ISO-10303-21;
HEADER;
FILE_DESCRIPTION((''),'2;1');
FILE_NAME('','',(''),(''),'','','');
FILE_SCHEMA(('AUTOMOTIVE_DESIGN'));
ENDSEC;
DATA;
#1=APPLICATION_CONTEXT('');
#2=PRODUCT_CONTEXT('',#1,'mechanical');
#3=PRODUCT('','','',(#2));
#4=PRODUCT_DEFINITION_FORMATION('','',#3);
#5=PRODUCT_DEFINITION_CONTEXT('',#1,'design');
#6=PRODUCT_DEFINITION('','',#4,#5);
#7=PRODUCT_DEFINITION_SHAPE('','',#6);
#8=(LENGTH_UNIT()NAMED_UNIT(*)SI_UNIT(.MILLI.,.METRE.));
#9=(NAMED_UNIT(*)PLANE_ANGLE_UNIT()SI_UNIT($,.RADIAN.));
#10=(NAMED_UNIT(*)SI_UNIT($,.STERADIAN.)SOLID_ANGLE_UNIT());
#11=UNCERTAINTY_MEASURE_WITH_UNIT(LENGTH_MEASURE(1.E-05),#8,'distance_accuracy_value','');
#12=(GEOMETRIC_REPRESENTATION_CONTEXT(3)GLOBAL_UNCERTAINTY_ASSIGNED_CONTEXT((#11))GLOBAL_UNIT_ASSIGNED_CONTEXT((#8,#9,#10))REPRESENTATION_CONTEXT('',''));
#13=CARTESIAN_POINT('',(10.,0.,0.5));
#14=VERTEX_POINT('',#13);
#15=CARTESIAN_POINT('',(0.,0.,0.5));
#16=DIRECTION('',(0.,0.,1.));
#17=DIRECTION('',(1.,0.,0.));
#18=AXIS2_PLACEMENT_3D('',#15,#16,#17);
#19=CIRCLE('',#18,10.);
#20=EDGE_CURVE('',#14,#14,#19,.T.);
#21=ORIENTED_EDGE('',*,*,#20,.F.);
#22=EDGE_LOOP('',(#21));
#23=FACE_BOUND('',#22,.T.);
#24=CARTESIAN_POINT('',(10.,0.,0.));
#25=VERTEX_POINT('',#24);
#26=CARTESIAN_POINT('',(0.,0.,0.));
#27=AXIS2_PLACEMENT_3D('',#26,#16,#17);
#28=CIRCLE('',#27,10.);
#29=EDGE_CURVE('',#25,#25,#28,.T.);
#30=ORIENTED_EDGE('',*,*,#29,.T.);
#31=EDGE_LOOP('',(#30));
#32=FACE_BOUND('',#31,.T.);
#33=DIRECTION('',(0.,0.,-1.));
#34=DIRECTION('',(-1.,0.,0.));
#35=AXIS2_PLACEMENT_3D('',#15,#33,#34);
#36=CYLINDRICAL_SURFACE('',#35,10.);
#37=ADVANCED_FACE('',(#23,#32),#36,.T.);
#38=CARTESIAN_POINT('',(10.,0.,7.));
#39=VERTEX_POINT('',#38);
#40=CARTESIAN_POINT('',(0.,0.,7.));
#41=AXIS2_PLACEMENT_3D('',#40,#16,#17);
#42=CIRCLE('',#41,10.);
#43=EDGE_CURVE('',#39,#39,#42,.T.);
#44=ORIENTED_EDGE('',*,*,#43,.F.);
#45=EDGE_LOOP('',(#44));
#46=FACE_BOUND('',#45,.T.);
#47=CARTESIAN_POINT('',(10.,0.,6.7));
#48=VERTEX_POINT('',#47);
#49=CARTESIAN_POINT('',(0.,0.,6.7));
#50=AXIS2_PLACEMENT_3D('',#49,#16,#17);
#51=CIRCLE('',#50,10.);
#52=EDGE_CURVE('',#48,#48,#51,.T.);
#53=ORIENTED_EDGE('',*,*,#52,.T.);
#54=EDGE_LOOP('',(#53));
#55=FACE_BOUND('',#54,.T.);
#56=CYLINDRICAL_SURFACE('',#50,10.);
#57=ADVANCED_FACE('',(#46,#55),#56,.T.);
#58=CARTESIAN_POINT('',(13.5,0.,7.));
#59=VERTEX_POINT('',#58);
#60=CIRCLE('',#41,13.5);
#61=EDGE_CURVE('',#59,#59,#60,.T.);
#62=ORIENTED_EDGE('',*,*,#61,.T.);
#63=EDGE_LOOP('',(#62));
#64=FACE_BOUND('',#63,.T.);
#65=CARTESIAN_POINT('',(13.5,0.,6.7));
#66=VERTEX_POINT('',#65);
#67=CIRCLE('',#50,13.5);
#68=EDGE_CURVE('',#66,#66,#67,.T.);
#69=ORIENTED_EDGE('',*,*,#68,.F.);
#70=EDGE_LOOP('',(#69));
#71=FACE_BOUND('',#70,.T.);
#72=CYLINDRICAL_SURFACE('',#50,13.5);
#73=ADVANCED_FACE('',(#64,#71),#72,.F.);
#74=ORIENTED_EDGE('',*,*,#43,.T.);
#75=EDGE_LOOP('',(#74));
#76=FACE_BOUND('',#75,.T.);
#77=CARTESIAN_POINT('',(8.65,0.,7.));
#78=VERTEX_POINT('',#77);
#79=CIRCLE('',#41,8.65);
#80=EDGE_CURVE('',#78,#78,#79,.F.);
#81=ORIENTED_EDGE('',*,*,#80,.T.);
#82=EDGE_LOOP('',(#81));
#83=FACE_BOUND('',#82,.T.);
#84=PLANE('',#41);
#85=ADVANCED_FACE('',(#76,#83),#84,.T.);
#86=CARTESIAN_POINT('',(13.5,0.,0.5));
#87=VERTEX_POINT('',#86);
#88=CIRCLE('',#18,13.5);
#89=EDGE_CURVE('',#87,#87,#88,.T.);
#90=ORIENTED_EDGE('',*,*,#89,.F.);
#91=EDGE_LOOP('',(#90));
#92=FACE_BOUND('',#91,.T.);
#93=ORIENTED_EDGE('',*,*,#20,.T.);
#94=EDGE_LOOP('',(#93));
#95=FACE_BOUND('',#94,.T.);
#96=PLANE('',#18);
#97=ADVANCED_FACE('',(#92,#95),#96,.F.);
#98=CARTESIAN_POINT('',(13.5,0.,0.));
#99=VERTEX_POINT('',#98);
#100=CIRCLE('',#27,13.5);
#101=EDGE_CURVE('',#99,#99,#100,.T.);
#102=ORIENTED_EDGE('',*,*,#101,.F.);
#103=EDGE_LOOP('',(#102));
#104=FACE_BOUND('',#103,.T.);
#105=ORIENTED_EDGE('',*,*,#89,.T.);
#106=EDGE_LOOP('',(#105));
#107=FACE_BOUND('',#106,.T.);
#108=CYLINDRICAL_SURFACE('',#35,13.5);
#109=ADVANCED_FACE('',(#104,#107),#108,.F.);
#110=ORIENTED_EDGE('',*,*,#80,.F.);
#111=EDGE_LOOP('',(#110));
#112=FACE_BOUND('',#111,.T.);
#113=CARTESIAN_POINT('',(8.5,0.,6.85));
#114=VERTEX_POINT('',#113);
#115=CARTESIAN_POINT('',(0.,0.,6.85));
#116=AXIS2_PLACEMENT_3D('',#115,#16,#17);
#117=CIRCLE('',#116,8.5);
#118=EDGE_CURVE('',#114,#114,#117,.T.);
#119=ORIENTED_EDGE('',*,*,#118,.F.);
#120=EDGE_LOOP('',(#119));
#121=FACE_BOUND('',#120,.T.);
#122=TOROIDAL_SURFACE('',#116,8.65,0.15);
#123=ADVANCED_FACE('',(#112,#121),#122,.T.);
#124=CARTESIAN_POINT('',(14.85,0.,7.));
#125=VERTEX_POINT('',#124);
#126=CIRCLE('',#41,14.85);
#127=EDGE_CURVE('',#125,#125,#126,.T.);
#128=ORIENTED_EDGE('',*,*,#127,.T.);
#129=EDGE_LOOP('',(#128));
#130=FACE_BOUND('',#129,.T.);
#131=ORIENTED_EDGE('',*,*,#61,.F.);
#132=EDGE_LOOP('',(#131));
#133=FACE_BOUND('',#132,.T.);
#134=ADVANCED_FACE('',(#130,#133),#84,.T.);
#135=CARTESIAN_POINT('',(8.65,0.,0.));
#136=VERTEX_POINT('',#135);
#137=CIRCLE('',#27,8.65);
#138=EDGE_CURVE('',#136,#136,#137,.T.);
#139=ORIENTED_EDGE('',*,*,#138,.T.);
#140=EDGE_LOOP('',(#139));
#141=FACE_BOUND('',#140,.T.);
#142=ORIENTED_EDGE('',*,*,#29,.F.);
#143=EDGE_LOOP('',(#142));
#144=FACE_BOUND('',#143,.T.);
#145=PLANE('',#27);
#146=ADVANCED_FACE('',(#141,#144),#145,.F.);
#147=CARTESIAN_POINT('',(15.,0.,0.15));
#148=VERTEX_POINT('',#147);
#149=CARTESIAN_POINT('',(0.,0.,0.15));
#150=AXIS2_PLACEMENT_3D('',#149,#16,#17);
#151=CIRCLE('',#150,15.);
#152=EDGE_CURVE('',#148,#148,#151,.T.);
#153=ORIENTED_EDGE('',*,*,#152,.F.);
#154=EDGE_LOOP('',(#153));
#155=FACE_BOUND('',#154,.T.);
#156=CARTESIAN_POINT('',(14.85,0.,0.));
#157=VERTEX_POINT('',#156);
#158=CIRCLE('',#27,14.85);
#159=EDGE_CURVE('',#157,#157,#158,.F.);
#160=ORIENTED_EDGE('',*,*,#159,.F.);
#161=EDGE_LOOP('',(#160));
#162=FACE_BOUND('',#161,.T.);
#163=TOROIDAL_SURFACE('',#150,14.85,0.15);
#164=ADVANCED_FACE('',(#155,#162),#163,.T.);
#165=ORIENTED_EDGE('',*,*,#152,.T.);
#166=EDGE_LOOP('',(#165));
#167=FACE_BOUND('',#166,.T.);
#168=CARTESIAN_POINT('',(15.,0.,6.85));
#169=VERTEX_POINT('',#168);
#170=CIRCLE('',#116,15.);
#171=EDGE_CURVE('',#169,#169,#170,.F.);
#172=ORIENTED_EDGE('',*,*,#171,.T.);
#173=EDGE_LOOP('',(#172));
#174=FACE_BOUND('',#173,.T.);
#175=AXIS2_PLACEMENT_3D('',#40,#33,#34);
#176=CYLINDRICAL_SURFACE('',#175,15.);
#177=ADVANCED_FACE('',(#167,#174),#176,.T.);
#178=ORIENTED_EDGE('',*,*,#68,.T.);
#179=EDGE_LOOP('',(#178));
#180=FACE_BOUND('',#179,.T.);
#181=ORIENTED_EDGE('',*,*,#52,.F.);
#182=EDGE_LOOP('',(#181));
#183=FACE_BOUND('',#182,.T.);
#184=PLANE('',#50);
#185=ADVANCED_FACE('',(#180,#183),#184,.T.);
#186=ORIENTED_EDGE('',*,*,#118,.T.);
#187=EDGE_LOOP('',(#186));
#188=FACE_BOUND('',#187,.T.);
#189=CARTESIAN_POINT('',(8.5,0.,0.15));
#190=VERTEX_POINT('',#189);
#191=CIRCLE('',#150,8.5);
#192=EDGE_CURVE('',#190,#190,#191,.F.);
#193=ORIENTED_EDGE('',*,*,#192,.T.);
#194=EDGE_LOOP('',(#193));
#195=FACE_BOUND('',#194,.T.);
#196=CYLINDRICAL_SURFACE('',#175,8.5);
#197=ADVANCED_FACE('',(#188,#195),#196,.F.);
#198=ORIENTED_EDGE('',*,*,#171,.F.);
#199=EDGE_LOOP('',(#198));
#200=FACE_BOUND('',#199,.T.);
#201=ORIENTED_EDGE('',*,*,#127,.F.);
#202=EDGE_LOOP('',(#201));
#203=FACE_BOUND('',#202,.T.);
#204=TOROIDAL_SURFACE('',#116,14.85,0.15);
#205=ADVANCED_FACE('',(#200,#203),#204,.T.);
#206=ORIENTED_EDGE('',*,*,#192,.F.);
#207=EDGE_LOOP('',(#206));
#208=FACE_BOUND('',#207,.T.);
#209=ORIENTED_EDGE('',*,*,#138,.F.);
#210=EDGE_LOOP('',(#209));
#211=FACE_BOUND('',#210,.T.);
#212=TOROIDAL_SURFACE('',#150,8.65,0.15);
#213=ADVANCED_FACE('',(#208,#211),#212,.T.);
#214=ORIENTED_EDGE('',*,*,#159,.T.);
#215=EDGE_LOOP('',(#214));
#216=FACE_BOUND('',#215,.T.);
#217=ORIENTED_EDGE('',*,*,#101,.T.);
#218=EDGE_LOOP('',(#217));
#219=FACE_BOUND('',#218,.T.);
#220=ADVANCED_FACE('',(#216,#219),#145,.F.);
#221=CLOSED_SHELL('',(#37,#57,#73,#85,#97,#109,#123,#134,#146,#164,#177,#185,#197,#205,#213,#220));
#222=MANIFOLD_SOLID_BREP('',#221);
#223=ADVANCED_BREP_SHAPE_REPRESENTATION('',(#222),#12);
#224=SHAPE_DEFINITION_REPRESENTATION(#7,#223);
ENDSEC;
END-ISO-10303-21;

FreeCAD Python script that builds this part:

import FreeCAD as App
import Part
import Sketcher

V = App.Vector
Q = App.Units.Quantity


def edges_at(feature, points):
    """Names of the edges that pass closest to the given points."""
    edges = feature.Shape.Edges
    near = lambda p: min(range(len(edges)), key=lambda i: edges[i].distToShape(Part.Vertex(*p))[0])
    return sorted({f"Edge{near(p) + 1}" for p in points})

doc = App.newDocument("Part")
body = doc.addObject("PartDesign::Body", "Body")

sketch1 = doc.addObject("Sketcher::SketchObject", "Sketch")
body.addObject(sketch1)
sketch1.AttachmentSupport = (doc.XY_Plane, [""])
sketch1.MapMode = "FlatFace"
sketch1.addGeometry([
    Part.Circle(V(0, 0, 0), V(0, 0, 1), 15),
    Part.Circle(V(0, 0, 0), V(0, 0, 1), 8),
], False)
sketch1.addConstraint([
    Sketcher.Constraint("Coincident", 0, 3, -1, 1),
    Sketcher.Constraint("Coincident", 1, 3, -1, 1),
    Sketcher.Constraint("Diameter", 0, Q("30 mm")),
    Sketcher.Constraint("Diameter", 1, Q("17 mm")),
])
pad1 = doc.addObject("PartDesign::Pad", "Pad")
body.addObject(pad1)
pad1.Profile = sketch1
pad1.Length = 7

sketch2 = doc.addObject("Sketcher::SketchObject", "Sketch001")
body.addObject(sketch2)
sketch2.AttachmentSupport = (doc.XY_Plane, [""])
sketch2.MapMode = "FlatFace"
sketch2.AttachmentOffset = App.Placement(V(0, 0, 7), App.Rotation())
sketch2.addGeometry([
    Part.Circle(V(0, 0, 0), V(0, 0, 1), 14),
    Part.Circle(V(0, 0, 0), V(0, 0, 1), 10),
], False)
sketch2.addConstraint([
    Sketcher.Constraint("Coincident", 0, 3, -1, 1),
    Sketcher.Constraint("Coincident", 1, 3, -1, 1),
    Sketcher.Constraint("Diameter", 0, Q("27 mm")),
    Sketcher.Constraint("Diameter", 1, Q("20 mm")),
])
pocket1 = doc.addObject("PartDesign::Pocket", "Pocket")
body.addObject(pocket1)
pocket1.Profile = sketch2
pocket1.Length = 0.3

sketch3 = doc.addObject("Sketcher::SketchObject", "Sketch002")
body.addObject(sketch3)
sketch3.AttachmentSupport = (doc.XY_Plane, [""])
sketch3.MapMode = "FlatFace"
sketch3.AttachmentOffset = App.Placement(V(0, 0, 0.5), App.Rotation())
sketch3.addGeometry([
    Part.Circle(V(0, 0, 0), V(0, 0, 1), 14),
    Part.Circle(V(0, 0, 0), V(0, 0, 1), 10),
], False)
sketch3.addConstraint([
    Sketcher.Constraint("Coincident", 0, 3, -1, 1),
    Sketcher.Constraint("Coincident", 1, 3, -1, 1),
    Sketcher.Constraint("Diameter", 0, Q("27 mm")),
    Sketcher.Constraint("Diameter", 1, Q("20 mm")),
])
pocket2 = doc.addObject("PartDesign::Pocket", "Pocket001")
body.addObject(pocket2)
pocket2.Profile = sketch3
pocket2.Length = 0.5
doc.recompute()

fillet = doc.addObject("PartDesign::Fillet", "Fillet")
body.addObject(fillet)
fillet.Base = (pocket2, edges_at(pocket2, [
    (-15, 0, 0),
    (-15, 0, 7),
    (-8.5, 0, 0),
    (-8.5, 0, 7),
]))
fillet.Radius = 0.15

doc.recompute()
